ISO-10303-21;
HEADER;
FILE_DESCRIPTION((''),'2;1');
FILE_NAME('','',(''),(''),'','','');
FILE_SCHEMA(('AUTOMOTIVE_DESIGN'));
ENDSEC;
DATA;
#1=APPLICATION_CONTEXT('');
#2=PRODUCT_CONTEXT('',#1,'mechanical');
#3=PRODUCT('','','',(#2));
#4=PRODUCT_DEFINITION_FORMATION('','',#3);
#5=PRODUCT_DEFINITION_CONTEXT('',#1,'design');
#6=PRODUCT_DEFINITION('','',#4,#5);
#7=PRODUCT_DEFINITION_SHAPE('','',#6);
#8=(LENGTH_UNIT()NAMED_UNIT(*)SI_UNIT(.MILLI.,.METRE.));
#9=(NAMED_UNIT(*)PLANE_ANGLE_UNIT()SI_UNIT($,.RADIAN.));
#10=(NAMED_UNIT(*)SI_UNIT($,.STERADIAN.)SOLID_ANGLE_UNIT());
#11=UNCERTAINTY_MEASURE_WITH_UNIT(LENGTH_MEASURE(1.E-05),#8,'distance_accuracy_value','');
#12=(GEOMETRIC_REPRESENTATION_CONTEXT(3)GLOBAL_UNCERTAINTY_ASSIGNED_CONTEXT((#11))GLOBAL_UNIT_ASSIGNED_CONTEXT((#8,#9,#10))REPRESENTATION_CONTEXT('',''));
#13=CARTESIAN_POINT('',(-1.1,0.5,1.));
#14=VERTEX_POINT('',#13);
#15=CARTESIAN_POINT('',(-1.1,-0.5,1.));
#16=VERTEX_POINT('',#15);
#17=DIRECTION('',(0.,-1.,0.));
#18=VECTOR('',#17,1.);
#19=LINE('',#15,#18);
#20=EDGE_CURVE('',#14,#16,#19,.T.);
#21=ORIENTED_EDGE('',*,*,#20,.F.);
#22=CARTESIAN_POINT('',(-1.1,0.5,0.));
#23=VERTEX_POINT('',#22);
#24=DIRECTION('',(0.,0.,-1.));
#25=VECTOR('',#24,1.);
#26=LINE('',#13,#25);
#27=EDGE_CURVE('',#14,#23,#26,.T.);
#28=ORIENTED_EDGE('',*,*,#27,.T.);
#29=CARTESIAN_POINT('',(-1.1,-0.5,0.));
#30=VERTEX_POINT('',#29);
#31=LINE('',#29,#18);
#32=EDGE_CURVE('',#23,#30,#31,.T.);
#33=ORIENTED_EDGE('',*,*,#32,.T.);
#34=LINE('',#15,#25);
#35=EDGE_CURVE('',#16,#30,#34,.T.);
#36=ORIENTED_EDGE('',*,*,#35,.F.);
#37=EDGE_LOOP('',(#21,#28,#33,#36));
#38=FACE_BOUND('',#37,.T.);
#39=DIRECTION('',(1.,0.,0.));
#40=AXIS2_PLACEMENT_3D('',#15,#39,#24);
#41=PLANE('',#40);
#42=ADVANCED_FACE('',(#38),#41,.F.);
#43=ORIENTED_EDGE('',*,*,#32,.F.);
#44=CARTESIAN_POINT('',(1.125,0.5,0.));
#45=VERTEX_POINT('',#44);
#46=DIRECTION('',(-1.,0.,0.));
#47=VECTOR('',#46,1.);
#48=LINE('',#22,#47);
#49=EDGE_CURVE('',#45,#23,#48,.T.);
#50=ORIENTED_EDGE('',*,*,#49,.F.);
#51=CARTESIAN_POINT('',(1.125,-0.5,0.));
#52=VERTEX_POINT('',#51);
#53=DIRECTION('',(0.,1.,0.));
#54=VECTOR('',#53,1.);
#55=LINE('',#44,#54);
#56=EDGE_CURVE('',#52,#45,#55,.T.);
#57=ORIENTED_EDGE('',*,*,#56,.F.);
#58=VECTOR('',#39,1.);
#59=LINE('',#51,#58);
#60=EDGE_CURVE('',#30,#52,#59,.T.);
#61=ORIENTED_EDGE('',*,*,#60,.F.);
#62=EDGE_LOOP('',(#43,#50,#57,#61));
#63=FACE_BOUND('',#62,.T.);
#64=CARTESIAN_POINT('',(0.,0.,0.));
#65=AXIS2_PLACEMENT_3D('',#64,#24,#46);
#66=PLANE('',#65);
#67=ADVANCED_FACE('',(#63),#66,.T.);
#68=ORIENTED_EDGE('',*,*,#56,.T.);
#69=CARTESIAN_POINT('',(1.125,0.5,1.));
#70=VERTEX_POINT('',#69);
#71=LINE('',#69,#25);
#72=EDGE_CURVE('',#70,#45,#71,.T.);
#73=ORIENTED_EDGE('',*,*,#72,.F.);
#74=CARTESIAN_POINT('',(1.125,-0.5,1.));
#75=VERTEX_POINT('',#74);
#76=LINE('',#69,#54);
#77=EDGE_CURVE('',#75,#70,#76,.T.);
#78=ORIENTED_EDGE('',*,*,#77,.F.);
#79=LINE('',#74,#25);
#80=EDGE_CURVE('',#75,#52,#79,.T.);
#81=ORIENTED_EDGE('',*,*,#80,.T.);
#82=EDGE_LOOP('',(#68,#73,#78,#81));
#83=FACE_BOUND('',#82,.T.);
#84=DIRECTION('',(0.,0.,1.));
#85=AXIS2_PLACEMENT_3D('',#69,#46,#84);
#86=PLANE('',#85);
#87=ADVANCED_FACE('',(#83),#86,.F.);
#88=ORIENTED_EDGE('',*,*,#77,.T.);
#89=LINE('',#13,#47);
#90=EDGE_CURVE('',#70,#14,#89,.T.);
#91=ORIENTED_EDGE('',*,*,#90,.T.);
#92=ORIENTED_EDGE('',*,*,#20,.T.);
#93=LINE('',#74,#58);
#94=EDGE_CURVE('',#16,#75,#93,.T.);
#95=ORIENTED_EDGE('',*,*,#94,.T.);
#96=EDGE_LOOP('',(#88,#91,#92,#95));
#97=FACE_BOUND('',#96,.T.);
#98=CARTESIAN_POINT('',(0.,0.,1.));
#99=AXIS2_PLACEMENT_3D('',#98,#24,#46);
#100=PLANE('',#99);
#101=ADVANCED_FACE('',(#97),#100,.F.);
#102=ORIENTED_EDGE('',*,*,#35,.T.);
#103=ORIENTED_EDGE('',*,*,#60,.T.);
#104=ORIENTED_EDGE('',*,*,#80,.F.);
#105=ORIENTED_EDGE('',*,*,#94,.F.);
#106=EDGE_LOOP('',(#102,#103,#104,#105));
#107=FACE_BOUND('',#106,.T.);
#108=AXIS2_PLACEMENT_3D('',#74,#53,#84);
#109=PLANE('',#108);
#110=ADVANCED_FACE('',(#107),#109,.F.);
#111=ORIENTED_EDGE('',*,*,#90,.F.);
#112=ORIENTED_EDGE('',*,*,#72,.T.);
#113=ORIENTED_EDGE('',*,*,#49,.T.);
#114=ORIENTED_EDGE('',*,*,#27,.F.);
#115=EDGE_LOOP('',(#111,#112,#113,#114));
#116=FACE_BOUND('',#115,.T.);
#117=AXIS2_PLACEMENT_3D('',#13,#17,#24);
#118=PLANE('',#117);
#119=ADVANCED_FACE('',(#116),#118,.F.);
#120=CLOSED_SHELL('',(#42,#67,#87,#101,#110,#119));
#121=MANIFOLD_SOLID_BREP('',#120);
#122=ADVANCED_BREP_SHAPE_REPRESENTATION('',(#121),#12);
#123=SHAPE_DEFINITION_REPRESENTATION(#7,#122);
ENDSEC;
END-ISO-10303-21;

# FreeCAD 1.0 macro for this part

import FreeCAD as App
import Part
import Sketcher
from FreeCAD import Vector

doc = App.newDocument("Part")
body = doc.addObject("PartDesign::Body", "Body")

# Sketch on XY plane
sketch1 = doc.addObject("Sketcher::SketchObject", "Sketch")
body.addObject(sketch1)
sketch1.AttachmentSupport = (doc.XY_Plane, [""])
sketch1.MapMode = "FlatFace"
sketch1.addGeometry(Part.LineSegment(Vector(-1.1, 0.5, 0), Vector(-1.1, -0.5, 0)), False)
sketch1.addGeometry(Part.LineSegment(Vector(-1.1, -0.5, 0), Vector(1.125, -0.5, 0)), False)
sketch1.addGeometry(Part.LineSegment(Vector(1.125, -0.5, 0), Vector(1.125, 0.5, 0)), False)
sketch1.addGeometry(Part.LineSegment(Vector(1.125, 0.5, 0), Vector(-1.1, 0.5, 0)), False)
sketch1.addConstraint(Sketcher.Constraint("Coincident", 0, 2, 1, 1))
sketch1.addConstraint(Sketcher.Constraint("Coincident", 1, 2, 2, 1))
sketch1.addConstraint(Sketcher.Constraint("Coincident", 2, 2, 3, 1))
sketch1.addConstraint(Sketcher.Constraint("Coincident", 3, 2, 0, 1))
sketch1.addConstraint(Sketcher.Constraint("Vertical", 0))
sketch1.addConstraint(Sketcher.Constraint("Horizontal", 1))
sketch1.addConstraint(Sketcher.Constraint("Vertical", 2))
sketch1.addConstraint(Sketcher.Constraint("Horizontal", 3))
sketch1.addConstraint(Sketcher.Constraint("DistanceY", 0, 2, 0, 1, 1.0))
sketch1.addConstraint(Sketcher.Constraint("DistanceX", 0, 2, -1, 1, 1.1))
sketch1.addConstraint(Sketcher.Constraint("DistanceY", 0, 2, -1, 1, 0.5))
sketch1.addConstraint(Sketcher.Constraint("DistanceX", 1, 1, 1, 2, 2.225))
pad1 = doc.addObject("PartDesign::Pad", "Pad")
body.addObject(pad1)
pad1.Profile = sketch1
pad1.Length = 1

doc.recompute()
